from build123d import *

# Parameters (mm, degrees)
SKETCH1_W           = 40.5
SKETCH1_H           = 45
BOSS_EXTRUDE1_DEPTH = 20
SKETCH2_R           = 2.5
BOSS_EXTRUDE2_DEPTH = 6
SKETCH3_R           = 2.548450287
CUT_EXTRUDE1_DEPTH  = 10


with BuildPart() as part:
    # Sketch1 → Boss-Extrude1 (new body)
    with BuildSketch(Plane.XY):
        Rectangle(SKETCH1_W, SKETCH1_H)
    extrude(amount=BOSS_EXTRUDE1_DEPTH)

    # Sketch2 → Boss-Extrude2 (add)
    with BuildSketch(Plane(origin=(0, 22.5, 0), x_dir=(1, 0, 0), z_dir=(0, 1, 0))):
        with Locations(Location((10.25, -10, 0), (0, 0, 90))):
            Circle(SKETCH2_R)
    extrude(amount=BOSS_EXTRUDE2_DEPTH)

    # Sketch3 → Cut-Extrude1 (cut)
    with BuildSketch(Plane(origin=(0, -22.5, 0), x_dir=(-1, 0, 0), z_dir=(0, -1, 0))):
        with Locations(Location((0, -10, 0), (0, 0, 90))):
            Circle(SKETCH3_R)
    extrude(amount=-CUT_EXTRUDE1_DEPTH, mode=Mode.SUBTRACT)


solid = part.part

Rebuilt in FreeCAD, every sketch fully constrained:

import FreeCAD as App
import Part
import Sketcher

V = App.Vector


def add_polygon(sketch, points):
    """Adds a closed chain of lines whose ends are joined by coincident constraints."""
    first, n = sketch.GeometryCount, len(points)
    for a, b in zip(points, points[1:] + points[:1]):
        sketch.addGeometry(Part.LineSegment(App.Vector(*a, 0), App.Vector(*b, 0)), False)
    for i in range(n):
        sketch.addConstraint(Sketcher.Constraint("Coincident", first + i, 2, first + (i + 1) % n, 1))

doc = App.newDocument("Part")
params = doc.addObject("Spreadsheet::Sheet", "Params")
for row, (alias, value) in enumerate([
    ("sketch1_height", "45 mm"),
    ("sketch1_width", "40.5 mm"),
    ("pad1_length", "20 mm"),
    ("sketch2_diameter", "5 mm"),
    ("pad2_length", "6 mm"),
    ("pocket1_length", "10 mm"),
], start=1):
    params.set(f"A{row}", alias)
    params.set(f"B{row}", "=" + value)
    params.setAlias(f"B{row}", alias)

body = doc.addObject("PartDesign::Body", "Body")

# Sketch on XY plane
sketch1 = doc.addObject("Sketcher::SketchObject", "Sketch")
body.addObject(sketch1)
sketch1.AttachmentSupport = (doc.XY_Plane, [""])
sketch1.MapMode = "FlatFace"
add_polygon(sketch1, [(-20, 22), (-20, -22), (20, -22), (20, 22)])  # lines 0-3
sketch1.addConstraint([
    Sketcher.Constraint("Vertical", 0),
    Sketcher.Constraint("Horizontal", 1),
    Sketcher.Constraint("Vertical", 2),
    Sketcher.Constraint("Horizontal", 3),
    Sketcher.Constraint("Symmetric", 0, 2, 2, 2, -1, 1),
    Sketcher.Constraint("DistanceY", 0, 2, 0, 1, 45.0),
    Sketcher.Constraint("DistanceX", 1, 1, 1, 2, 40.5),
])
sketch1.setExpression("Constraints[9]", "Params.sketch1_height")
sketch1.setExpression("Constraints[10]", "Params.sketch1_width")
pad1 = doc.addObject("PartDesign::Pad", "Pad")
body.addObject(pad1)
pad1.Profile = sketch1
pad1.setExpression("Length", "Params.pad1_length")

# Sketch on XZ plane
sketch2 = doc.addObject("Sketcher::SketchObject", "Sketch001")
body.addObject(sketch2)
sketch2.AttachmentSupport = (doc.XZ_Plane, [""])
sketch2.MapMode = "FlatFace"
sketch2.AttachmentOffset = App.Placement(V(0, 0, -22.5), App.Rotation())
sketch2.addGeometry(Part.Circle(V(10.2, 10, 0), V(0, 0, 1), 2.5), False)
sketch2.addConstraint([
    Sketcher.Constraint("Diameter", 0, 5.0),
    Sketcher.Constraint("DistanceY", -1, 1, 0, 3, 10.0),
    Sketcher.Constraint("DistanceX", -1, 1, 0, 3, 10.25),
])
sketch2.setExpression("Constraints[0]", "Params.sketch2_diameter")
pad2 = doc.addObject("PartDesign::Pad", "Pad001")
body.addObject(pad2)
pad2.Profile = sketch2
pad2.setExpression("Length", "Params.pad2_length")
pad2.Reversed = True

# Sketch on XZ plane
sketch3 = doc.addObject("Sketcher::SketchObject", "Sketch002")
body.addObject(sketch3)
sketch3.AttachmentSupport = (doc.XZ_Plane, [""])
sketch3.MapMode = "FlatFace"
sketch3.AttachmentOffset = App.Placement(V(0, 0, 22.5), App.Rotation())
sketch3.addGeometry(Part.Circle(V(0, 10, 0), V(0, 0, 1), 2.5), False)
sketch3.addConstraint([
    Sketcher.Constraint("PointOnObject", 0, 3, -2),
    Sketcher.Constraint("DistanceY", -1, 1, 0, 3, 10.0),
    Sketcher.Constraint("Diameter", 0, 5.096901),
])
pocket1 = doc.addObject("PartDesign::Pocket", "Pocket")
body.addObject(pocket1)
pocket1.Profile = sketch3
pocket1.setExpression("Length", "Params.pocket1_length")

doc.recompute()
